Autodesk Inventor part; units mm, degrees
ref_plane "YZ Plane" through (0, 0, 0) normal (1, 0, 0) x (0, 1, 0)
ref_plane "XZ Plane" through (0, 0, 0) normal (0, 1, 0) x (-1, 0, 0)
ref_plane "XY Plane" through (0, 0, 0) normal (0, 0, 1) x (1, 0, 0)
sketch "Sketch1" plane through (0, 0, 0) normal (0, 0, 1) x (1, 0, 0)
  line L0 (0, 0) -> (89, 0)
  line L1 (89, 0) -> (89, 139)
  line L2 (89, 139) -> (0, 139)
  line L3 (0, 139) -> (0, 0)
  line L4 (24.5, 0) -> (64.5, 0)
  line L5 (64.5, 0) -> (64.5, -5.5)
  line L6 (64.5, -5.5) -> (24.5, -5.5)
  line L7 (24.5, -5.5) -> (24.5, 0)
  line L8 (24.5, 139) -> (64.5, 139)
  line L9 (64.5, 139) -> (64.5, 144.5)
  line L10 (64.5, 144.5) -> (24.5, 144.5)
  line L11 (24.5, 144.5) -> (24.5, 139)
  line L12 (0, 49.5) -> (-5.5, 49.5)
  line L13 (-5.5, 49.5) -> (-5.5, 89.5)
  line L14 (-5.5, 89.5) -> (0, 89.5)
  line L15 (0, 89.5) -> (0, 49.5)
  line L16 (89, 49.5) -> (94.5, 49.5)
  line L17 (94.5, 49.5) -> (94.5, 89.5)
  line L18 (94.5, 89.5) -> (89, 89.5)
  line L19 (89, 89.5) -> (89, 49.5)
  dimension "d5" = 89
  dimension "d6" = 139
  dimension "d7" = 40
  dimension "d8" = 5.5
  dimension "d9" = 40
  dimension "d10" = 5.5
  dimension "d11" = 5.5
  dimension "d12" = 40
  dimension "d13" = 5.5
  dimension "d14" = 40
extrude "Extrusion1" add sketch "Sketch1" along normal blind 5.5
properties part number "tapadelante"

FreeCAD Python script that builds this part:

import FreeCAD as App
import Part
import Sketcher
from FreeCAD import Vector
Q = App.Units.Quantity


def add_polygon(sketch, points):
    """Adds a closed chain of lines whose ends are joined by coincident constraints."""
    first, n = sketch.GeometryCount, len(points)
    for a, b in zip(points, points[1:] + points[:1]):
        sketch.addGeometry(Part.LineSegment(App.Vector(*a, 0), App.Vector(*b, 0)), False)
    for i in range(n):
        sketch.addConstraint(Sketcher.Constraint("Coincident", first + i, 2, first + (i + 1) % n, 1))

doc = App.newDocument("Part")
params = doc.addObject("Spreadsheet::Sheet", "Params")
for row, (alias, value) in enumerate([
    ("sketch1_width", "40 mm"),
    ("sketch1_width2", "5.5 mm"),
    ("pad1_length", "5.5 mm"),
], start=1):
    params.set(f"A{row}", alias)
    params.set(f"B{row}", "=" + value)
    params.setAlias(f"B{row}", alias)

body = doc.addObject("PartDesign::Body", "Body")

sketch1 = body.newObject("Sketcher::SketchObject", "Sketch")
sketch1.AttachmentSupport = (doc.getObject("XY_Plane"), [""])
sketch1.MapMode = "FlatFace"
add_polygon(sketch1, [(0, 49.5), (0, 0), (24.5, 0), (24.5, -5.5), (64.5, -5.5), (64.5, 0), (89, 0), (89, 49.5), (94.5, 49.5), (94.5, 89.5), (89, 89.5), (89, 139), (64.5, 139), (64.5, 144.5), (24.5, 144.5), (24.5, 139), (0, 139), (0, 89.5), (-5.5, 89.5), (-5.5, 49.5)])
sketch1.addConstraint([
    Sketcher.Constraint("Vertical", 0),
    Sketcher.Constraint("Horizontal", 1),
    Sketcher.Constraint("Vertical", 2),
    Sketcher.Constraint("Horizontal", 3),
    Sketcher.Constraint("Vertical", 4),
    Sketcher.Constraint("Horizontal", 5),
    Sketcher.Constraint("Vertical", 6),
    Sketcher.Constraint("Horizontal", 7),
    Sketcher.Constraint("Vertical", 8),
    Sketcher.Constraint("Horizontal", 9),
    Sketcher.Constraint("Vertical", 10),
    Sketcher.Constraint("Horizontal", 11),
    Sketcher.Constraint("Vertical", 12),
    Sketcher.Constraint("Horizontal", 13),
    Sketcher.Constraint("Vertical", 14),
    Sketcher.Constraint("Horizontal", 15),
    Sketcher.Constraint("Vertical", 16),
    Sketcher.Constraint("Horizontal", 17),
    Sketcher.Constraint("Vertical", 18),
    Sketcher.Constraint("Horizontal", 19),
    Sketcher.Constraint("Coincident", 0, 2, -1, 1),
    Sketcher.Constraint("PointOnObject", 4, 2, -1),
    Sketcher.Constraint("PointOnObject", 15, 2, -2),
    Sketcher.Constraint("Horizontal", 11, 2, 14, 2),
    Sketcher.Constraint("Horizontal", 9, 2, 16, 2),
    Sketcher.Constraint("Horizontal", 7, 2, 18, 2),
    Sketcher.Constraint("Vertical", 6, 2, 9, 2),
    Sketcher.Constraint("Vertical", 4, 2, 11, 2),
    Sketcher.Constraint("Vertical", 2, 2, 13, 2),
    Sketcher.Constraint("Equal", 1, 5),
    Sketcher.Constraint("Equal", 9, 17),
    Sketcher.Constraint("Equal", 19, 2),
    Sketcher.Constraint("Equal", 13, 8),
    Sketcher.Constraint("Equal", 6, 10),
    Sketcher.Constraint("Equal", 4, 12),
    Sketcher.Constraint("DistanceX", 3, 1, 3, 2, Q("40 mm")),
    Sketcher.Constraint("DistanceX", 7, 1, 7, 2, Q("5.5 mm")),
    Sketcher.Constraint("DistanceX", -1, 1, 5, 2, Q("89 mm")),
    Sketcher.Constraint("DistanceY", -1, 1, 10, 2, Q("139 mm")),
])
sketch1.setExpression("Constraints[55]", "Params.sketch1_width")
sketch1.setExpression("Constraints[56]", "Params.sketch1_width2")
pad1 = body.newObject("PartDesign::Pad", "Pad")
pad1.Profile = sketch1
pad1.setExpression("Length", "Params.pad1_length")

doc.recompute()
